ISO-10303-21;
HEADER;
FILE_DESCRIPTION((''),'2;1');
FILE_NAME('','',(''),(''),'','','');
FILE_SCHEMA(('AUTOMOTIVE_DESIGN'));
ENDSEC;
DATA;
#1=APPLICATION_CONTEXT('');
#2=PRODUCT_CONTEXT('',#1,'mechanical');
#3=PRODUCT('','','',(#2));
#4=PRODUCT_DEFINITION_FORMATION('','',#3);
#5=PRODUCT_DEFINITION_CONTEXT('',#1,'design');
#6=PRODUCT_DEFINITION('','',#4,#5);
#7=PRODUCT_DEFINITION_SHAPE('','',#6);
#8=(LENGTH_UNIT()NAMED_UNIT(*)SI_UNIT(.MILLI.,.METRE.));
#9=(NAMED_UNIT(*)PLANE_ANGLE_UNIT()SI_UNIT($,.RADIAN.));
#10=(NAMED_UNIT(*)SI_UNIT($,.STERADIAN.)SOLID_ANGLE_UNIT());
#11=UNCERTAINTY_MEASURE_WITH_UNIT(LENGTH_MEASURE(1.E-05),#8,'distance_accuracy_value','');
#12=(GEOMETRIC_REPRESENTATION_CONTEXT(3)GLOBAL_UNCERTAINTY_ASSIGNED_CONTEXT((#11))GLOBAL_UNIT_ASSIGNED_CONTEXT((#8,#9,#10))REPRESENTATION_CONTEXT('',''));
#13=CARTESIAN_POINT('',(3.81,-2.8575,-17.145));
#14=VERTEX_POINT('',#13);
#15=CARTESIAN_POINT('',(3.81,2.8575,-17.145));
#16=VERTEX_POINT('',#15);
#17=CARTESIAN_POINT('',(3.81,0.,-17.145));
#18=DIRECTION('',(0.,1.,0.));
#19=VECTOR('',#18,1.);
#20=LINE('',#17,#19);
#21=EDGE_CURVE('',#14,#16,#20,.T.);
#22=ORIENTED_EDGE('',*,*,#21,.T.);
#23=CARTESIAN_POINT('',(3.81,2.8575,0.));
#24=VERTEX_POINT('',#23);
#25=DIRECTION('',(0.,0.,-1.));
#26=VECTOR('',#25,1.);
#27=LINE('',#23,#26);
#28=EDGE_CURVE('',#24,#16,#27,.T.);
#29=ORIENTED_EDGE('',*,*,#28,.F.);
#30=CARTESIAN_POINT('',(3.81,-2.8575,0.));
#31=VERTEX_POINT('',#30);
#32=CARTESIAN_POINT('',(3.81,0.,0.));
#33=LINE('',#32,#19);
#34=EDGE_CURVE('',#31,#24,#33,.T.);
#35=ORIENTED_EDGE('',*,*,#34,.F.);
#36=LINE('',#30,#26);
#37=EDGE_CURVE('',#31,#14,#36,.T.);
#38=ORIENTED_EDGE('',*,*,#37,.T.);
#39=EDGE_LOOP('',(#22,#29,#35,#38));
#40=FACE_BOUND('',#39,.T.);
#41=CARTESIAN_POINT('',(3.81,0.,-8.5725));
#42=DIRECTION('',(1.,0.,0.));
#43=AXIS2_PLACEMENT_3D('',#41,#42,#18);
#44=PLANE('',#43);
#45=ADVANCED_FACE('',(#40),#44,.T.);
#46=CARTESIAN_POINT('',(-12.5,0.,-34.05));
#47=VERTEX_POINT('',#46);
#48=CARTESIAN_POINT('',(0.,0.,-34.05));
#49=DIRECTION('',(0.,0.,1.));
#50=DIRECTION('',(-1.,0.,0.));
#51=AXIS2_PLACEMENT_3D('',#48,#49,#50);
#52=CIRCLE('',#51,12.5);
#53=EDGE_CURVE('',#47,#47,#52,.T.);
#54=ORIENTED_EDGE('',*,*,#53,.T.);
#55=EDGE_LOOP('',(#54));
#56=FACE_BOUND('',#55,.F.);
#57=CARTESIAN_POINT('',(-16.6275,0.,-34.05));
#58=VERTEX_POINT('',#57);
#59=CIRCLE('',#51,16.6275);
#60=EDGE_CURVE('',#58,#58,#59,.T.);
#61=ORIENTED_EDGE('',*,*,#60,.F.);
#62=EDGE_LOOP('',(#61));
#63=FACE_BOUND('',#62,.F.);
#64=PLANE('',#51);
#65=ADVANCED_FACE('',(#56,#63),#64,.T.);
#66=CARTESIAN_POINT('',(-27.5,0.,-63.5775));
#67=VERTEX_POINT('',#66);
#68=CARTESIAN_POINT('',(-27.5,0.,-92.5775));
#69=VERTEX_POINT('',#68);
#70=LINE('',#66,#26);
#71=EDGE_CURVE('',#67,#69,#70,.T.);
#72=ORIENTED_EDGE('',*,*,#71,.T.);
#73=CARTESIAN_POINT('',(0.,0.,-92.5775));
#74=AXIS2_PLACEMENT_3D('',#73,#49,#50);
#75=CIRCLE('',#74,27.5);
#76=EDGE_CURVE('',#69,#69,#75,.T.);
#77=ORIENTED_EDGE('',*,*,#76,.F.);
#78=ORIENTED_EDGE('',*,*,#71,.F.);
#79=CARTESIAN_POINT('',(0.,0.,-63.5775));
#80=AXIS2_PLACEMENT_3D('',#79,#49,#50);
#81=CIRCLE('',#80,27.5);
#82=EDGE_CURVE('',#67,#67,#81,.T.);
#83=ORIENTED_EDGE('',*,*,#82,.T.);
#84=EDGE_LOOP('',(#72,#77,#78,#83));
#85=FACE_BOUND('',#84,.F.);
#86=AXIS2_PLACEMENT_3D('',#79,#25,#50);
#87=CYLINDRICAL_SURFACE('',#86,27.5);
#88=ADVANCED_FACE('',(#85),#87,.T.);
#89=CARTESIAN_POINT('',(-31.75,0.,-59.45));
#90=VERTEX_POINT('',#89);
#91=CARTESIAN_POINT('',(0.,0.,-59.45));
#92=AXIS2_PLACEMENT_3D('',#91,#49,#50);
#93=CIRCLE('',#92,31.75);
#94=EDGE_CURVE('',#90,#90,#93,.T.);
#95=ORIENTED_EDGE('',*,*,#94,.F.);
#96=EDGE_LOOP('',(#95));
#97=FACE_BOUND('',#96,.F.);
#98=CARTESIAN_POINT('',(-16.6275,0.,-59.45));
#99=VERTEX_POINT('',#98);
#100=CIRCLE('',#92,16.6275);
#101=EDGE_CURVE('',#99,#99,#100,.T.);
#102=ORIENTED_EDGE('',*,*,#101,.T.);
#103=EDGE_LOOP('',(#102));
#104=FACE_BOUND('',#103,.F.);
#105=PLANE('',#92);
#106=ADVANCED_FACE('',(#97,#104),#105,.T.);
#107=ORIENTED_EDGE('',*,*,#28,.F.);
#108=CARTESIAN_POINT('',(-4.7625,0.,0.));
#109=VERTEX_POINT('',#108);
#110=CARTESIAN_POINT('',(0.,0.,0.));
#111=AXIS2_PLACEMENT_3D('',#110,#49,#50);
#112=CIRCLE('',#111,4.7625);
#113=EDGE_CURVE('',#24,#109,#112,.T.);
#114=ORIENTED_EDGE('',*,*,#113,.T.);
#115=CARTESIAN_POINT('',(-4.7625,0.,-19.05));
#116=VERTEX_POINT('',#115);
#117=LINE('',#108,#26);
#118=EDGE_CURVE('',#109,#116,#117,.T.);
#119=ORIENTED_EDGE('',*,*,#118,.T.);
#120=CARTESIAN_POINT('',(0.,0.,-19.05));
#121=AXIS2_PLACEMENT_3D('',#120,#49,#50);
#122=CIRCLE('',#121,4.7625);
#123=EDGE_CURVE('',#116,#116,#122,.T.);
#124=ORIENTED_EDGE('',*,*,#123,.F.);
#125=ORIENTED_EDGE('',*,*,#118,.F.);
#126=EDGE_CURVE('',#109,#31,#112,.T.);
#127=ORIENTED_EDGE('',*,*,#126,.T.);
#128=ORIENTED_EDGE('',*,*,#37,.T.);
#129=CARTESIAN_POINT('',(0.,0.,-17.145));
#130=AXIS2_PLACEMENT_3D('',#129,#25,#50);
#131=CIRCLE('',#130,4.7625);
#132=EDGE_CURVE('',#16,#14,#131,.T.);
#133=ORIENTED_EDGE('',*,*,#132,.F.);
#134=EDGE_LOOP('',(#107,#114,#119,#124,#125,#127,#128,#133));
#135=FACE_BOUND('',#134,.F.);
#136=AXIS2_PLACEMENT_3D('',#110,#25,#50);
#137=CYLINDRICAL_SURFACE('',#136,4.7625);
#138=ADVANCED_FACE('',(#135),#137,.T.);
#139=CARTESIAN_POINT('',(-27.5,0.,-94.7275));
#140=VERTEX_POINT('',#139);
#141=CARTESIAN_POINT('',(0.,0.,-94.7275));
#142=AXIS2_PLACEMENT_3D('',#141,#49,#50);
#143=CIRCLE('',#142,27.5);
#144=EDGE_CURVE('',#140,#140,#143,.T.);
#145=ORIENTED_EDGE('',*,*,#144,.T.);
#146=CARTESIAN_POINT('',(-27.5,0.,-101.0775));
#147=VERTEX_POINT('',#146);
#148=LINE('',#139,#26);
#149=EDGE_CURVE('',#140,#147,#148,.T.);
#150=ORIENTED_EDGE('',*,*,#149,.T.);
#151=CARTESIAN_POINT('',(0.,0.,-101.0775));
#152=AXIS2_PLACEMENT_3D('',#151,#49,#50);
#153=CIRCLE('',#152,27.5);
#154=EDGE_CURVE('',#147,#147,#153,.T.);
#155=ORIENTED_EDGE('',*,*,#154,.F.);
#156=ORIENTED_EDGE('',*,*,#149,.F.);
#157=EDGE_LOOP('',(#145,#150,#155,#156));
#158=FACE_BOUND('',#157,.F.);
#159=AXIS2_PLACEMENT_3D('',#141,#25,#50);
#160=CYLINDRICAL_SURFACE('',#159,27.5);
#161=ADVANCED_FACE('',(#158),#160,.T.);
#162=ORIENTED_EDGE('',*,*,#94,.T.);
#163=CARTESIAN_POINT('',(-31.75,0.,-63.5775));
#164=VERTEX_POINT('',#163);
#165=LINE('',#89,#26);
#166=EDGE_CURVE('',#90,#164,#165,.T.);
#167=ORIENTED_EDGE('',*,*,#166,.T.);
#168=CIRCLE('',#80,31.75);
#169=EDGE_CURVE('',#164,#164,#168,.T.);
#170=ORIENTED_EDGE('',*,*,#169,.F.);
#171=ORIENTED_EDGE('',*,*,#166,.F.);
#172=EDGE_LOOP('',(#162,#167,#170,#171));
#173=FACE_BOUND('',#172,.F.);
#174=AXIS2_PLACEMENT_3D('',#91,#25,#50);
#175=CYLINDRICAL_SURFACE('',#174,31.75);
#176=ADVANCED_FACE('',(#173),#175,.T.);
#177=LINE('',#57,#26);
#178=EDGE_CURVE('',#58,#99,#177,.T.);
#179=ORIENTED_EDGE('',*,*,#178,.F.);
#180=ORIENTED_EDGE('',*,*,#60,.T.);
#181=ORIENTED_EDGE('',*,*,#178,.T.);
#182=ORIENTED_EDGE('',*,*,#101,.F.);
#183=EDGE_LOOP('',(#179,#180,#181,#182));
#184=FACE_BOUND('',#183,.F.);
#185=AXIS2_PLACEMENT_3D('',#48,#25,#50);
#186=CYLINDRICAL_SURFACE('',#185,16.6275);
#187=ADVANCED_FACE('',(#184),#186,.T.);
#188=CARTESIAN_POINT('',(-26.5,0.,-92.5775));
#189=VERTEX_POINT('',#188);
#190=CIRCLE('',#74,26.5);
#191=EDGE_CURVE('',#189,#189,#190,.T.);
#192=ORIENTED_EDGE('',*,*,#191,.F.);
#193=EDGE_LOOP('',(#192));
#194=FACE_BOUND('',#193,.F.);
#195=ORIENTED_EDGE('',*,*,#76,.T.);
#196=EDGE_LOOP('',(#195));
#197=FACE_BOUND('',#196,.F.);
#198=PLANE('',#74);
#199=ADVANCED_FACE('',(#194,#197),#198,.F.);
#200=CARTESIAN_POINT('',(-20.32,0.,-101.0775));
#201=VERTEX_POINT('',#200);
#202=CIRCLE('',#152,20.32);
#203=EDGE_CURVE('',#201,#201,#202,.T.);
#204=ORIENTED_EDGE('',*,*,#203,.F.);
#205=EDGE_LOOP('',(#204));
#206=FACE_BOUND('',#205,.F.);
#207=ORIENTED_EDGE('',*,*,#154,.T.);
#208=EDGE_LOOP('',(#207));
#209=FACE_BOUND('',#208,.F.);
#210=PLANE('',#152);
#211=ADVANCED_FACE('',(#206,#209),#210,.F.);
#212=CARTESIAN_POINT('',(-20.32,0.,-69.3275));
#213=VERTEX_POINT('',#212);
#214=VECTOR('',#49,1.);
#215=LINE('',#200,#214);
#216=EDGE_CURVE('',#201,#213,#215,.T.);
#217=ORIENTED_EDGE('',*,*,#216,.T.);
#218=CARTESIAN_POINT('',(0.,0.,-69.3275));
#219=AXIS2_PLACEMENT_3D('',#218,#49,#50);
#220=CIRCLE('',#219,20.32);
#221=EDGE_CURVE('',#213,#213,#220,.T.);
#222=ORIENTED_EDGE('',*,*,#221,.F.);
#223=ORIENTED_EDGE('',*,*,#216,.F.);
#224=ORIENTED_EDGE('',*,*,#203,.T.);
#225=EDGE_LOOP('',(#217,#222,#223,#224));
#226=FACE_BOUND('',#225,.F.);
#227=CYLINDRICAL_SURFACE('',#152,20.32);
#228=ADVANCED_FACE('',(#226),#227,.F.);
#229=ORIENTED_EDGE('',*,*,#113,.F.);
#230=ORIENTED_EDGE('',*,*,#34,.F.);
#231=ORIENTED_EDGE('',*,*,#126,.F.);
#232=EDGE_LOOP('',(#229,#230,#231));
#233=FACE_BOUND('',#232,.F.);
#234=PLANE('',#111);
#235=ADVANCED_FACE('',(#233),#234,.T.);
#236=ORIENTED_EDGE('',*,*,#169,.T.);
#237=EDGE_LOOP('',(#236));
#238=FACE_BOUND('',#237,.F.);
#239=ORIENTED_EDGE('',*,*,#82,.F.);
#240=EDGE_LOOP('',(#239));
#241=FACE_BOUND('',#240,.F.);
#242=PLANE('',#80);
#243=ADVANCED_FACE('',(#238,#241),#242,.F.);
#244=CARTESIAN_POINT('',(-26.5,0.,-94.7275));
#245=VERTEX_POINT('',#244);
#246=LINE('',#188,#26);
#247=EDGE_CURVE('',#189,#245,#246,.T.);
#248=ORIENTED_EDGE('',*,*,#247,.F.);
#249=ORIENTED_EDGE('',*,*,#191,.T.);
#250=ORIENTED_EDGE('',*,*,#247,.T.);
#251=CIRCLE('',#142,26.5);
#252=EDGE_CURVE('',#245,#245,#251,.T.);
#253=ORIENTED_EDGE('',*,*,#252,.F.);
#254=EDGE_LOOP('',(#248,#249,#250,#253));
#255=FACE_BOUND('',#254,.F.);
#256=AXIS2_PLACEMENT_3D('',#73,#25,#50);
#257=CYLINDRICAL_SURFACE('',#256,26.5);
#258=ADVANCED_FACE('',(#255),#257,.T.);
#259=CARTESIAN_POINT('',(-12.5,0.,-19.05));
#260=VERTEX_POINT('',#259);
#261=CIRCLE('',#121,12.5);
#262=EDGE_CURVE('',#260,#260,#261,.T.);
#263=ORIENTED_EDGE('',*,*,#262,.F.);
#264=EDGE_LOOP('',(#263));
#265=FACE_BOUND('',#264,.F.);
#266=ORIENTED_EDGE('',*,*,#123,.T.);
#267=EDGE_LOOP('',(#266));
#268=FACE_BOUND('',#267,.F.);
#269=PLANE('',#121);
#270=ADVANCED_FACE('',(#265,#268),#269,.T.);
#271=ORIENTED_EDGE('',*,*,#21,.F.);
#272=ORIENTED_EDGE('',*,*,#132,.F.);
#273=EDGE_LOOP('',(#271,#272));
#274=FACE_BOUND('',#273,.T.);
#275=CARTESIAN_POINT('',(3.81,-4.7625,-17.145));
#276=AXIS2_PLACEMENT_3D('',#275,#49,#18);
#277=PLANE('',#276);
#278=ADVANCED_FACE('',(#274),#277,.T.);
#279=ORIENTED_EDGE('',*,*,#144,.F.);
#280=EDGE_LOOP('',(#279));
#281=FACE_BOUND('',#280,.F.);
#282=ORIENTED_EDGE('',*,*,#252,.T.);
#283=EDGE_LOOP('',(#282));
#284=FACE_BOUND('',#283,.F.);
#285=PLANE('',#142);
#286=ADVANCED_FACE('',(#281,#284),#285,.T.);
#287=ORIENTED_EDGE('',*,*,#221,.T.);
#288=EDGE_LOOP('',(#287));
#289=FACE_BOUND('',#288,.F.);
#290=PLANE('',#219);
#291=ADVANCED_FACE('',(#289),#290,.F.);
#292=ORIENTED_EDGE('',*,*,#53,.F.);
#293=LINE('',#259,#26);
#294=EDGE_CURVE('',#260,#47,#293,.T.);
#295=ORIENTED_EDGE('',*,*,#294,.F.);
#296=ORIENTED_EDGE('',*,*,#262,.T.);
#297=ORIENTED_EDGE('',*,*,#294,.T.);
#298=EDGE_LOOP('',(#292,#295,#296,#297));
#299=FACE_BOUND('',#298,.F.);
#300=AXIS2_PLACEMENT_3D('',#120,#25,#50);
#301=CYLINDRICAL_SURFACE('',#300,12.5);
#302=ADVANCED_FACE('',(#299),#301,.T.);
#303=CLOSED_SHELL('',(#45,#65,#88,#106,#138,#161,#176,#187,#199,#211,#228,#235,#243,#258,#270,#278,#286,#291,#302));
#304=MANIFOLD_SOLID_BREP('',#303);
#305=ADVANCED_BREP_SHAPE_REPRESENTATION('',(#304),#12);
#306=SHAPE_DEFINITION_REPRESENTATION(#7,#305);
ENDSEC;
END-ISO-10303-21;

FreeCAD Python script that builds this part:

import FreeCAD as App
import Part
import Sketcher
Q = App.Units.Quantity

doc = App.newDocument("Part")
body = doc.addObject("PartDesign::Body", "Body")

# Sketch on XZ plane
sketch1 = doc.addObject("Sketcher::SketchObject", "Sketch")
body.addObject(sketch1)
sketch1.AttachmentSupport = (doc.XZ_Plane, [""])
sketch1.MapMode = "FlatFace"
sketch1.addGeometry(Part.LineSegment(App.Vector(0, -69.3, 0), App.Vector(0, 0, 0)), False)
sketch1.addGeometry(Part.LineSegment(App.Vector(0, 0, 0), App.Vector(-4.8, 0, 0)), False)
sketch1.addGeometry(Part.LineSegment(App.Vector(-4.8, 0, 0), App.Vector(-4.8, -19.1, 0)), False)
sketch1.addGeometry(Part.LineSegment(App.Vector(-4.8, -19.1, 0), App.Vector(-12.5, -19.1, 0)), False)
sketch1.addGeometry(Part.LineSegment(App.Vector(-12.5, -19.1, 0), App.Vector(-12.5, -34, 0)), False)
sketch1.addGeometry(Part.LineSegment(App.Vector(-12.5, -34, 0), App.Vector(-16.6, -34, 0)), False)
sketch1.addGeometry(Part.LineSegment(App.Vector(-16.6, -34, 0), App.Vector(-16.6, -59.5, 0)), False)
sketch1.addGeometry(Part.LineSegment(App.Vector(-16.6, -59.5, 0), App.Vector(-31.8, -59.5, 0)), False)
sketch1.addGeometry(Part.LineSegment(App.Vector(-31.8, -59.5, 0), App.Vector(-31.8, -63.6, 0)), False)
sketch1.addGeometry(Part.LineSegment(App.Vector(-31.8, -63.6, 0), App.Vector(-27.5, -63.6, 0)), False)
sketch1.addGeometry(Part.LineSegment(App.Vector(-27.5, -63.6, 0), App.Vector(-27.5, -92.6, 0)), False)
sketch1.addGeometry(Part.LineSegment(App.Vector(-27.5, -92.6, 0), App.Vector(-26.5, -92.6, 0)), False)
sketch1.addGeometry(Part.LineSegment(App.Vector(-26.5, -92.6, 0), App.Vector(-26.5, -94.7, 0)), False)
sketch1.addGeometry(Part.LineSegment(App.Vector(-26.5, -94.7, 0), App.Vector(-27.5, -94.7, 0)), False)
sketch1.addGeometry(Part.LineSegment(App.Vector(-27.5, -94.7, 0), App.Vector(-27.5, -101.1, 0)), False)
sketch1.addGeometry(Part.LineSegment(App.Vector(-27.5, -101.1, 0), App.Vector(-20.3, -101.1, 0)), False)
sketch1.addGeometry(Part.LineSegment(App.Vector(-20.3, -101.1, 0), App.Vector(-20.3, -69.3, 0)), False)
sketch1.addGeometry(Part.LineSegment(App.Vector(-20.3, -69.3, 0), App.Vector(0, -69.3, 0)), False)
sketch1.addConstraint(Sketcher.Constraint("Coincident", 0, 2, 1, 1))
sketch1.addConstraint(Sketcher.Constraint("Coincident", 1, 2, 2, 1))
sketch1.addConstraint(Sketcher.Constraint("Coincident", 2, 2, 3, 1))
sketch1.addConstraint(Sketcher.Constraint("Coincident", 3, 2, 4, 1))
sketch1.addConstraint(Sketcher.Constraint("Coincident", 4, 2, 5, 1))
sketch1.addConstraint(Sketcher.Constraint("Coincident", 5, 2, 6, 1))
sketch1.addConstraint(Sketcher.Constraint("Coincident", 6, 2, 7, 1))
sketch1.addConstraint(Sketcher.Constraint("Coincident", 7, 2, 8, 1))
sketch1.addConstraint(Sketcher.Constraint("Coincident", 8, 2, 9, 1))
sketch1.addConstraint(Sketcher.Constraint("Coincident", 9, 2, 10, 1))
sketch1.addConstraint(Sketcher.Constraint("Coincident", 10, 2, 11, 1))
sketch1.addConstraint(Sketcher.Constraint("Coincident", 11, 2, 12, 1))
sketch1.addConstraint(Sketcher.Constraint("Coincident", 12, 2, 13, 1))
sketch1.addConstraint(Sketcher.Constraint("Coincident", 13, 2, 14, 1))
sketch1.addConstraint(Sketcher.Constraint("Coincident", 14, 2, 15, 1))
sketch1.addConstraint(Sketcher.Constraint("Coincident", 15, 2, 16, 1))
sketch1.addConstraint(Sketcher.Constraint("Coincident", 16, 2, 17, 1))
sketch1.addConstraint(Sketcher.Constraint("Coincident", 17, 2, 0, 1))
sketch1.addConstraint(Sketcher.Constraint("Vertical", 0))
sketch1.addConstraint(Sketcher.Constraint("Horizontal", 1))
sketch1.addConstraint(Sketcher.Constraint("Vertical", 2))
sketch1.addConstraint(Sketcher.Constraint("Horizontal", 3))
sketch1.addConstraint(Sketcher.Constraint("Vertical", 4))
sketch1.addConstraint(Sketcher.Constraint("Horizontal", 5))
sketch1.addConstraint(Sketcher.Constraint("Vertical", 6))
sketch1.addConstraint(Sketcher.Constraint("Horizontal", 7))
sketch1.addConstraint(Sketcher.Constraint("Vertical", 8))
sketch1.addConstraint(Sketcher.Constraint("Horizontal", 9))
sketch1.addConstraint(Sketcher.Constraint("Vertical", 10))
sketch1.addConstraint(Sketcher.Constraint("Horizontal", 11))
sketch1.addConstraint(Sketcher.Constraint("Vertical", 12))
sketch1.addConstraint(Sketcher.Constraint("Horizontal", 13))
sketch1.addConstraint(Sketcher.Constraint("Vertical", 14))
sketch1.addConstraint(Sketcher.Constraint("Horizontal", 15))
sketch1.addConstraint(Sketcher.Constraint("Vertical", 16))
sketch1.addConstraint(Sketcher.Constraint("Horizontal", 17))
sketch1.addConstraint(Sketcher.Constraint("Coincident", 0, 2, -1, 1))
sketch1.addConstraint(Sketcher.Constraint("Vertical", 10, 2, 13, 2))
sketch1.addConstraint(Sketcher.Constraint("Equal", 5, 8))
sketch1.addConstraint(Sketcher.Constraint("DistanceY", 6, 2, 6, 1, Q("1 in")))
sketch1.addConstraint(Sketcher.Constraint("DistanceX", 17, 1, 17, 2, Q("0.8 in")))
sketch1.addConstraint(Sketcher.Constraint("DistanceY", 2, 2, 2, 1, Q("0.75 in")))
sketch1.addConstraint(Sketcher.Constraint("DistanceY", 14, 2, 14, 1, Q("0.25 in")))
sketch1.addConstraint(Sketcher.Constraint("DistanceY", 16, 1, 16, 2, Q("1.25 in")))
sketch1.addConstraint(Sketcher.Constraint("DistanceX", 1, 2, 1, 1, Q("0.1875 in")))
sketch1.addConstraint(Sketcher.Constraint("DistanceX", 7, 2, -1, 1, Q("1.25 in")))
sketch1.addConstraint(Sketcher.Constraint("DistanceX", 5, 2, 5, 1, Q("0.1625 in")))
sketch1.addConstraint(Sketcher.Constraint("DistanceX", 3, 2, 3, 1, 7.7375))
sketch1.addConstraint(Sketcher.Constraint("DistanceX", 9, 1, 9, 2, 4.25))
sketch1.addConstraint(Sketcher.Constraint("DistanceX", 11, 1, 11, 2, 1.0))
sketch1.addConstraint(Sketcher.Constraint("DistanceY", 0, 1, 0, 2, 69.3275))
sketch1.addConstraint(Sketcher.Constraint("DistanceY", 4, 2, 4, 1, 15.0))
sketch1.addConstraint(Sketcher.Constraint("DistanceY", 10, 2, 10, 1, 29.0))
revolution = doc.addObject("PartDesign::Revolution", "Revolution")
body.addObject(revolution)
revolution.Profile = sketch1
revolution.ReferenceAxis = (sketch1, ["V_Axis"])
revolution.Angle = 360

# Sketch on YZ plane
sketch2 = doc.addObject("Sketcher::SketchObject", "Sketch001")
body.addObject(sketch2)
sketch2.AttachmentSupport = (doc.YZ_Plane, [""])
sketch2.MapMode = "FlatFace"
sketch2.AttachmentOffset = App.Placement(App.Vector(0, 0, 0.15 * 25.4), App.Rotation())
sketch2.addGeometry(Part.LineSegment(App.Vector(-5, 0, 0), App.Vector(-5, -17, 0)), False)
sketch2.addGeometry(Part.LineSegment(App.Vector(-5, -17, 0), App.Vector(5, -17, 0)), False)
sketch2.addGeometry(Part.LineSegment(App.Vector(5, -17, 0), App.Vector(5, 0, 0)), False)
sketch2.addGeometry(Part.LineSegment(App.Vector(5, 0, 0), App.Vector(-5, 0, 0)), False)
sketch2.addConstraint(Sketcher.Constraint("Coincident", 0, 2, 1, 1))
sketch2.addConstraint(Sketcher.Constraint("Coincident", 1, 2, 2, 1))
sketch2.addConstraint(Sketcher.Constraint("Coincident", 2, 2, 3, 1))
sketch2.addConstraint(Sketcher.Constraint("Coincident", 3, 2, 0, 1))
sketch2.addConstraint(Sketcher.Constraint("Vertical", 0))
sketch2.addConstraint(Sketcher.Constraint("Horizontal", 1))
sketch2.addConstraint(Sketcher.Constraint("Vertical", 2))
sketch2.addConstraint(Sketcher.Constraint("Horizontal", 3))
sketch2.addConstraint(Sketcher.Constraint("Symmetric", 2, 2, 3, 2, -1, 1))
sketch2.addConstraint(Sketcher.Constraint("DistanceX", 1, 1, 1, 2, Q("0.375 in")))
sketch2.addConstraint(Sketcher.Constraint("DistanceY", 0, 2, 0, 1, Q("0.675 in")))
pocket1 = doc.addObject("PartDesign::Pocket", "Pocket")
body.addObject(pocket1)
pocket1.Profile = sketch2
pocket1.Type = "ThroughAll"
pocket1.Reversed = True

doc.recompute()
